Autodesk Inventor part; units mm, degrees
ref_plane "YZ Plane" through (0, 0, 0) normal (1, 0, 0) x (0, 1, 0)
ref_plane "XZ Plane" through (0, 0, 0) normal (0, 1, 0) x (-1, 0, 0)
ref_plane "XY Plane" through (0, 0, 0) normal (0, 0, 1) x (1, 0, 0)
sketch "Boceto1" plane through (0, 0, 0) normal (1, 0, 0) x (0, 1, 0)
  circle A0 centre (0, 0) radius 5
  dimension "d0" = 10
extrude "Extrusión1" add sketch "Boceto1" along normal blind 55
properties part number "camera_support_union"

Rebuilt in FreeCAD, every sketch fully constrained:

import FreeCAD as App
import Part
import Sketcher
from FreeCAD import Vector

doc = App.newDocument("Part")
body = doc.addObject("PartDesign::Body", "Body")

# Sketch on YZ plane
sketch1 = doc.addObject("Sketcher::SketchObject", "Sketch")
body.addObject(sketch1)
sketch1.AttachmentSupport = (doc.YZ_Plane, [""])
sketch1.MapMode = "FlatFace"
sketch1.addGeometry(Part.Circle(Vector(0, 0, 0), Vector(0, 0, 1), 5), False)
sketch1.addConstraint(Sketcher.Constraint("Coincident", 0, 3, -1, 1))
sketch1.addConstraint(Sketcher.Constraint("Diameter", 0, 10.0))
pad1 = doc.addObject("PartDesign::Pad", "Pad")
body.addObject(pad1)
pad1.Profile = sketch1
pad1.Length = 55

doc.recompute()
